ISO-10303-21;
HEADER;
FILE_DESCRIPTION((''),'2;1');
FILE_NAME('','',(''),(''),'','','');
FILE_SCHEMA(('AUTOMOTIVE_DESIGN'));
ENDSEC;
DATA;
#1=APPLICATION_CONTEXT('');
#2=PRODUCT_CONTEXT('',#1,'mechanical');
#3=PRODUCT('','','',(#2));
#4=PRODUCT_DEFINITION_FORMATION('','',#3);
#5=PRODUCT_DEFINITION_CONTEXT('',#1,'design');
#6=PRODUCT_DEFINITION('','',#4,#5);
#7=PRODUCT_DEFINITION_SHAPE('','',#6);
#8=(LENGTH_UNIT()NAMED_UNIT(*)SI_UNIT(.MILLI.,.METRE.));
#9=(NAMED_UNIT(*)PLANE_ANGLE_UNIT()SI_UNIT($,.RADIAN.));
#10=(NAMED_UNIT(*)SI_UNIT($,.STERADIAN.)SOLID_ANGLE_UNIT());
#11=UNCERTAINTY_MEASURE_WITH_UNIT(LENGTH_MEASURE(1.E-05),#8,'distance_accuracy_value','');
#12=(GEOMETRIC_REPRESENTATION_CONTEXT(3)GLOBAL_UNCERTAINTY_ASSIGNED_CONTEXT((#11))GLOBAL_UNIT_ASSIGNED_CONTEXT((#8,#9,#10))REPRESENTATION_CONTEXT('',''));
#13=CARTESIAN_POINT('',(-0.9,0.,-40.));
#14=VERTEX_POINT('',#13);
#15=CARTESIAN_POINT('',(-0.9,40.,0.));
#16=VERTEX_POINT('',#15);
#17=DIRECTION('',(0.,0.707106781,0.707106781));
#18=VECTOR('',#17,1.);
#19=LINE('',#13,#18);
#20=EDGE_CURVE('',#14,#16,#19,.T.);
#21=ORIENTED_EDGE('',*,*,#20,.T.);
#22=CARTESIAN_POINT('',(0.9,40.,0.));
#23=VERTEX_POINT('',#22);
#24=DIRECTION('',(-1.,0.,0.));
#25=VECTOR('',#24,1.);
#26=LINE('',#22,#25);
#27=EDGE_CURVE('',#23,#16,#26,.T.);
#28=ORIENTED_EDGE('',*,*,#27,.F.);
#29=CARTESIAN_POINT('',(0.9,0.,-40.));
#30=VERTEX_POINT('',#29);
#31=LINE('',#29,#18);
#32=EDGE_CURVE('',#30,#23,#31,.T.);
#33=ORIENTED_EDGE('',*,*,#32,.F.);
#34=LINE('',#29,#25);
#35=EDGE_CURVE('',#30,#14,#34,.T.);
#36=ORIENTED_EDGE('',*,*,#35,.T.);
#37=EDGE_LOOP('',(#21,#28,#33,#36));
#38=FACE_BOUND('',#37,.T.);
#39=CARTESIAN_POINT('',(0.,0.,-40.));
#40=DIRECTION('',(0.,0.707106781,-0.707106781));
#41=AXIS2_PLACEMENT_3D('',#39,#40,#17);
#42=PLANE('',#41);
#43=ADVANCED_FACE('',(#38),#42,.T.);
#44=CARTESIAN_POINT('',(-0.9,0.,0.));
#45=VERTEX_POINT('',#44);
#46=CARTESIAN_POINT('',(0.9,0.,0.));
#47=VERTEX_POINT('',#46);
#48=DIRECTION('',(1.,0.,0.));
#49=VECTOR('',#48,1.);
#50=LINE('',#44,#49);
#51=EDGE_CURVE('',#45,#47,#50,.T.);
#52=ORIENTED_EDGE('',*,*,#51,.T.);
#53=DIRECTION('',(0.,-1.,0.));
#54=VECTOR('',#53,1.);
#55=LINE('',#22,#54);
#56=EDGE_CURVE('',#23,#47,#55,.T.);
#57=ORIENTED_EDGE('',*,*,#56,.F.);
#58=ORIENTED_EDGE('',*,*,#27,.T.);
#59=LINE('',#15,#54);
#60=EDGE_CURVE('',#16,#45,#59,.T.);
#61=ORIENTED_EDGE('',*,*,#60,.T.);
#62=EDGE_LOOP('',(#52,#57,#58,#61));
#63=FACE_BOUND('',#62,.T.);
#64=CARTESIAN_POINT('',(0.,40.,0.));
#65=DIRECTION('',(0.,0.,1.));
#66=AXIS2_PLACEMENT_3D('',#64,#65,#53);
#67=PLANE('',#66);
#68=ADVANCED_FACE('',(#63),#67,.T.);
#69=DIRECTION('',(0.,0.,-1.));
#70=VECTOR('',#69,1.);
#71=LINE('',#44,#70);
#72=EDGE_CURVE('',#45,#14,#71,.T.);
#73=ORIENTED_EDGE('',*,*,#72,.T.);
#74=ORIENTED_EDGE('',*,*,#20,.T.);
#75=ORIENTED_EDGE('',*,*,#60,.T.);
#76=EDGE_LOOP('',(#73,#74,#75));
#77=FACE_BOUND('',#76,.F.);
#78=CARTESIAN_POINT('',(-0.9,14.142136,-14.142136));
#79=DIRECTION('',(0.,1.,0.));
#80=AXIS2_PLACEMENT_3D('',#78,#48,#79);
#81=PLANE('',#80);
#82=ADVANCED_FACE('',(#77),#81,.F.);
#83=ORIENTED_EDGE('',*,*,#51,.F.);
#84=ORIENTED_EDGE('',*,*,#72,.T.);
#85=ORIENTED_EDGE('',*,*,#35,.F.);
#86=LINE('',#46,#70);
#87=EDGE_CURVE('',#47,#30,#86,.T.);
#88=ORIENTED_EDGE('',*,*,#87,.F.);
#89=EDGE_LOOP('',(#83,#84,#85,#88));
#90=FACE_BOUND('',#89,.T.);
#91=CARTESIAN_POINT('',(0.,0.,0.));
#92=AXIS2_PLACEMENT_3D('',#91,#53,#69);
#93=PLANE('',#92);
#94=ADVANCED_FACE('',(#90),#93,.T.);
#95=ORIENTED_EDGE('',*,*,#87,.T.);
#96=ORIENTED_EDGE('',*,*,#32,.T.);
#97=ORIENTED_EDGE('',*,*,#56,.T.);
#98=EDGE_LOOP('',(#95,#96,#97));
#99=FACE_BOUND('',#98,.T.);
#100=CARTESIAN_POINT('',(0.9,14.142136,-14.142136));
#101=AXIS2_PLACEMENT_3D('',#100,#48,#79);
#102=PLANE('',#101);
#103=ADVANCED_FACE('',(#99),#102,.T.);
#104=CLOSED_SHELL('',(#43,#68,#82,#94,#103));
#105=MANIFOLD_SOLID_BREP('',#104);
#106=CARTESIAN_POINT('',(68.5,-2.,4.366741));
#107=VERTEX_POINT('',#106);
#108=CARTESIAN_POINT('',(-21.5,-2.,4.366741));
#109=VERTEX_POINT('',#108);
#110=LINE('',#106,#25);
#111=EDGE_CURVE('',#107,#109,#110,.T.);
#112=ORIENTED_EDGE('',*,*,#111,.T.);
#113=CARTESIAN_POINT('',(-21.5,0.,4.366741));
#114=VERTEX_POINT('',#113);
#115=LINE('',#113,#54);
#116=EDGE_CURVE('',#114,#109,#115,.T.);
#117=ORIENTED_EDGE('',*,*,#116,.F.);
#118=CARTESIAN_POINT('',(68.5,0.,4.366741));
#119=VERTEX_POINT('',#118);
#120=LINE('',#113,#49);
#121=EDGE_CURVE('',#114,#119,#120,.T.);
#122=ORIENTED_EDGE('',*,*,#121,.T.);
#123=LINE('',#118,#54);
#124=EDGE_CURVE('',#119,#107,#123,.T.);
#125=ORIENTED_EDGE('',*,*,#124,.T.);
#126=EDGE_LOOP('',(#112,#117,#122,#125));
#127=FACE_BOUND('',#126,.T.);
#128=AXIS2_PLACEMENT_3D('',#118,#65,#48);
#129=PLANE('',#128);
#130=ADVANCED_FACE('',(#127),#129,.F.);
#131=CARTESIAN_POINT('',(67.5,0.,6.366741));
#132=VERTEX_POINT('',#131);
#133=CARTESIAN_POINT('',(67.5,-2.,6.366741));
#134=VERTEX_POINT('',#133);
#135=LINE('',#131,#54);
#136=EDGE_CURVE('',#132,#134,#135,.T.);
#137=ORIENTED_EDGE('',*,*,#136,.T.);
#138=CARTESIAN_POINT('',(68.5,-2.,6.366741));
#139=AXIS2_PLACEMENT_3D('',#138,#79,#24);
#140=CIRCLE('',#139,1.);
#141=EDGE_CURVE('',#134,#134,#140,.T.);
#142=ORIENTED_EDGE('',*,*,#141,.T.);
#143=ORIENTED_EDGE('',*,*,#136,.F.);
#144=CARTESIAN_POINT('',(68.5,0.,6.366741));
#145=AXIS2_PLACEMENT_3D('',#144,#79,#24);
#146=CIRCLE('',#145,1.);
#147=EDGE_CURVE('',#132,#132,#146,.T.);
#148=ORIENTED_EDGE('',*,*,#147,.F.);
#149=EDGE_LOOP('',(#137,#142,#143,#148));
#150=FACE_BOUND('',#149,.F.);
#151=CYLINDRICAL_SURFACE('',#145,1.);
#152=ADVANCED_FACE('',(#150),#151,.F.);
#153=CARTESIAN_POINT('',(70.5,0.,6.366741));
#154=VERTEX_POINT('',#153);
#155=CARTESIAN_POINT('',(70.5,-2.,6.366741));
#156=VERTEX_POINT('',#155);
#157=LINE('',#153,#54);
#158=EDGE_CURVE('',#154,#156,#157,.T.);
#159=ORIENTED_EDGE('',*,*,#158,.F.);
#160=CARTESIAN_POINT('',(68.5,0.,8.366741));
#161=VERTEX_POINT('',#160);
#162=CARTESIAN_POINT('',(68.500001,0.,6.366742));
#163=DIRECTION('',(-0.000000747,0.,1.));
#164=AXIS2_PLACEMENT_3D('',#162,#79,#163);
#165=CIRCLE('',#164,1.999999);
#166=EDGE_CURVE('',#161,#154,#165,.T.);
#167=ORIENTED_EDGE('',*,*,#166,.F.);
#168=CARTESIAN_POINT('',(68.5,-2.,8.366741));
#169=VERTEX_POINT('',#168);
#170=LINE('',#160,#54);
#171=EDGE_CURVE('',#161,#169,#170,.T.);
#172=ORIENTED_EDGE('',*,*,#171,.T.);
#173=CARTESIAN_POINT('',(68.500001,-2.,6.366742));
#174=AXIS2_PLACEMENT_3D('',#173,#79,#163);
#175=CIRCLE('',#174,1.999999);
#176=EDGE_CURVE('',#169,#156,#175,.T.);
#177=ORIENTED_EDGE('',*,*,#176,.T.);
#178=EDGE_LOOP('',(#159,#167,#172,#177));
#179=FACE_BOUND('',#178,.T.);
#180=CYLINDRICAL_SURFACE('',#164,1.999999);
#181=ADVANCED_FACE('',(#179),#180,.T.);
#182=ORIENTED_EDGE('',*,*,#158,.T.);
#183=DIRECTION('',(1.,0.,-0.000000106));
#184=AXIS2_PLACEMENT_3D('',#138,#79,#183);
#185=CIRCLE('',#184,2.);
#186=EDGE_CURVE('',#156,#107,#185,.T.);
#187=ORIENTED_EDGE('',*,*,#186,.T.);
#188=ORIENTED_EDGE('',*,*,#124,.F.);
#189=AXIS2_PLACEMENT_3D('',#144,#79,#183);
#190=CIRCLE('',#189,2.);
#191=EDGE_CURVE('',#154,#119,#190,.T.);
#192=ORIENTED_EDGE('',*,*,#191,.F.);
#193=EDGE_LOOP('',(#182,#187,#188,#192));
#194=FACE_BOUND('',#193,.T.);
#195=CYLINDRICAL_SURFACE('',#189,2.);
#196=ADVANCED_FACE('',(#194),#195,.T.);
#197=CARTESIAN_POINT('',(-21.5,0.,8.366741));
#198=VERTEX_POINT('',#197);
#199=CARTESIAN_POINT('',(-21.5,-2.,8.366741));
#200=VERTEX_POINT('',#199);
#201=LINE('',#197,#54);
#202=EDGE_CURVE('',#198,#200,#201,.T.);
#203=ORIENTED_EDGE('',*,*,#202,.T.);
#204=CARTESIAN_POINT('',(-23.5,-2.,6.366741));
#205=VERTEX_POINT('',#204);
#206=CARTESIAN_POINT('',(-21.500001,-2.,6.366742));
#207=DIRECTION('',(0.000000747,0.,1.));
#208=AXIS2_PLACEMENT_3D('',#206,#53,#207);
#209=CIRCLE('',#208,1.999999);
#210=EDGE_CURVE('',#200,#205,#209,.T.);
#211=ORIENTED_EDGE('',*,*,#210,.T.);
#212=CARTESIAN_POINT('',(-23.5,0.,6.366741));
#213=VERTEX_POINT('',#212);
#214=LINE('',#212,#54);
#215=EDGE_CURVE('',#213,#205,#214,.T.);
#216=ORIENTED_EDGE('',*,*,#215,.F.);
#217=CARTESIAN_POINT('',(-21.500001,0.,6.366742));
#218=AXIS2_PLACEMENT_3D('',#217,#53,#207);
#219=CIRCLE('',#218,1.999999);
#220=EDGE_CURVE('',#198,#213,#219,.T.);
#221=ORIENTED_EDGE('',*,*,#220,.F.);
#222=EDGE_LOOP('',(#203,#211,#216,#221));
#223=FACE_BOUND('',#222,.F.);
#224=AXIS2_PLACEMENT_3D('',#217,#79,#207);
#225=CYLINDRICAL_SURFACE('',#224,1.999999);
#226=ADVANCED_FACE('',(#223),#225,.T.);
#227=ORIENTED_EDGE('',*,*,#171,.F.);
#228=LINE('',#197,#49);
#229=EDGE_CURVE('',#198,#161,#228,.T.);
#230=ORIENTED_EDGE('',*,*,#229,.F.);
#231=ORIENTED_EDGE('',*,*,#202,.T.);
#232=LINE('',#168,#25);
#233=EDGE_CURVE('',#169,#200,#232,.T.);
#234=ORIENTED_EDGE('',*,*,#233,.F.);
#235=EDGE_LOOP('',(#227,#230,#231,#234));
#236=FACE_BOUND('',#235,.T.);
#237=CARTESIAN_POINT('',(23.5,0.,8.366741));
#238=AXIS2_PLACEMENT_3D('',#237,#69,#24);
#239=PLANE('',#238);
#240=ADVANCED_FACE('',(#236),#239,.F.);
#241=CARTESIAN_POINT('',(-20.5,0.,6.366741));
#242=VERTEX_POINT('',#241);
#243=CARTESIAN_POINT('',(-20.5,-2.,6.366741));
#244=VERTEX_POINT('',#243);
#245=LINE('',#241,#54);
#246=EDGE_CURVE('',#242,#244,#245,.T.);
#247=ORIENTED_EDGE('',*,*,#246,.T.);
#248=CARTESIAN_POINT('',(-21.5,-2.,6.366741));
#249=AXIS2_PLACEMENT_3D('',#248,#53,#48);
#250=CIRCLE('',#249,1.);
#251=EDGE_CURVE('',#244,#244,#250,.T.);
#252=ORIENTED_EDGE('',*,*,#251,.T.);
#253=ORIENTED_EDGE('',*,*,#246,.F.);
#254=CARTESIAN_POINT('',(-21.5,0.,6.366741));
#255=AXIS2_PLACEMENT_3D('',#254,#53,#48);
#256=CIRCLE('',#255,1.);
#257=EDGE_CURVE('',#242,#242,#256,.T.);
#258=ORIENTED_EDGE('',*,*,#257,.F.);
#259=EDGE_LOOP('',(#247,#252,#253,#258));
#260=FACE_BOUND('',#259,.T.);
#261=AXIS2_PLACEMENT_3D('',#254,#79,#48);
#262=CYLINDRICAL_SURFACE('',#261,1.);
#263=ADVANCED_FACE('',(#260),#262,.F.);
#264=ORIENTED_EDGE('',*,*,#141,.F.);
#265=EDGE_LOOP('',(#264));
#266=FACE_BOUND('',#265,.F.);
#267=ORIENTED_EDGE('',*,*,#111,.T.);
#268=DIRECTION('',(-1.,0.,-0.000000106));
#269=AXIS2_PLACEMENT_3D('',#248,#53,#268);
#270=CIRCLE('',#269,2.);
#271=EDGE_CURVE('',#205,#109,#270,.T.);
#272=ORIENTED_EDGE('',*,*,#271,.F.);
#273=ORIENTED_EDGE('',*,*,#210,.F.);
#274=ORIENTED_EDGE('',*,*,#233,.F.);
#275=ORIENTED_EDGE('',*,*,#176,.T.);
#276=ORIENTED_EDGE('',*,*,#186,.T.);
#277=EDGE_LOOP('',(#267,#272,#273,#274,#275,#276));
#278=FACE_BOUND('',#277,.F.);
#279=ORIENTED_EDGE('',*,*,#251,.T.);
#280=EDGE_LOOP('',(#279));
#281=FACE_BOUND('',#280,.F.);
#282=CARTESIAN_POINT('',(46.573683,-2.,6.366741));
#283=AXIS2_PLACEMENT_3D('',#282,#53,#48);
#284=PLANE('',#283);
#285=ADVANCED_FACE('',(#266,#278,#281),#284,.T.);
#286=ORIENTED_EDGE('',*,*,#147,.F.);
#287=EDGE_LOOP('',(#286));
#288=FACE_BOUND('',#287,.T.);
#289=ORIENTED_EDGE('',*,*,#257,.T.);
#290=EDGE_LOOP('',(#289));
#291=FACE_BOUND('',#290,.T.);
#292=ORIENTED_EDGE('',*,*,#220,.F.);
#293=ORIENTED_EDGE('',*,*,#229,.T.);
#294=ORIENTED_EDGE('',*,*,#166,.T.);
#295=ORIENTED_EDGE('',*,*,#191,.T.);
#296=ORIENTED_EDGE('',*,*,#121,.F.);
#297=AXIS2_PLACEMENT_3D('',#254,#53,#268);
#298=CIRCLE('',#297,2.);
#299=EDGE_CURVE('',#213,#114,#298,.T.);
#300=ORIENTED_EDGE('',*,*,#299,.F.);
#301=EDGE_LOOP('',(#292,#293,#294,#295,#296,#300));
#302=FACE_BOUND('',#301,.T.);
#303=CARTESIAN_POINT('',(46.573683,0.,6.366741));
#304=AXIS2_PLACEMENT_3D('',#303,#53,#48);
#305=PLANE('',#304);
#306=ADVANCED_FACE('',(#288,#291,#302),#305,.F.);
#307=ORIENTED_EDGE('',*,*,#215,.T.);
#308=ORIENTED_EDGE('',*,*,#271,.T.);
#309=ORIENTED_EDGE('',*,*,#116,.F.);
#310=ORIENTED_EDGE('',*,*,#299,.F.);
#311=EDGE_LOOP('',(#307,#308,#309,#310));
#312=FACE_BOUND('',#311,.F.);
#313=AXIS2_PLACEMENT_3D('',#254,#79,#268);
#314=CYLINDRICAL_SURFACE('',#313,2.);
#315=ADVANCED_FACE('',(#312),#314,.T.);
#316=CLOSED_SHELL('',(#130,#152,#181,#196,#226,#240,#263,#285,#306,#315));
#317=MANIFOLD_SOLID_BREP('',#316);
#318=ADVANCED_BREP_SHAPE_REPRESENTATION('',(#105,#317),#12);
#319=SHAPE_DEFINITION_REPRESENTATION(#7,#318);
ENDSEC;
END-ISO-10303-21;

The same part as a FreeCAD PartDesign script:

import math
import FreeCAD as App
import Part
import Sketcher

doc = App.newDocument("Part")
body = doc.addObject("PartDesign::Body", "Body")

# Sketch on YZ plane
sketch1 = doc.addObject("Sketcher::SketchObject", "Sketch")
body.addObject(sketch1)
sketch1.AttachmentSupport = (doc.YZ_Plane, [""])
sketch1.MapMode = "FlatFace"
sketch1.addGeometry([
    Part.LineSegment(App.Vector(40, 0, 0), App.Vector(0, 0, 0)),
    Part.LineSegment(App.Vector(0, 0, 0), App.Vector(0, -40, 0)),
    Part.LineSegment(App.Vector(0, -40, 0), App.Vector(40, 0, 0)),
], False)
sketch1.addConstraint([
    Sketcher.Constraint("Coincident", 0, 2, 1, 1),
    Sketcher.Constraint("Coincident", 1, 2, 2, 1),
    Sketcher.Constraint("Coincident", 2, 2, 0, 1),
    Sketcher.Constraint("Horizontal", 0),
    Sketcher.Constraint("Vertical", 1),
    Sketcher.Constraint("Coincident", 0, 2, -1, 1),
    Sketcher.Constraint("Equal", 0, 1),
    Sketcher.Constraint("DistanceX", 0, 2, 0, 1, 40.0),
])
pad1 = doc.addObject("PartDesign::Pad", "Pad")
body.addObject(pad1)
pad1.Profile = sketch1
pad1.Length = 1.8
pad1.Midplane = True
body2 = doc.addObject("PartDesign::Body", "Body001")

# Sketch on XZ plane
sketch2 = doc.addObject("Sketcher::SketchObject", "Sketch001")
body2.addObject(sketch2)
sketch2.AttachmentSupport = (doc.getObject("XZ_Plane001"), [""])
sketch2.MapMode = "FlatFace"
sketch2.addGeometry([
    Part.LineSegment(App.Vector(23.5, 4.4, 0), App.Vector(23.5, 8.4, 0)),  # 0
    Part.LineSegment(App.Vector(23.5, 8.4, 0), App.Vector(-21.5, 8.4, 0)),  # 1
    Part.ArcOfCircle(Part.Circle(App.Vector(-21.5, 6.4, 0), App.Vector(0, 0, 1), 2), math.radians(90), math.radians(180)),  # 2
    Part.ArcOfCircle(Part.Circle(App.Vector(-21.5, 6.4, 0), App.Vector(0, 0, 1), 2), math.radians(-180), math.radians(-90)),  # 3
    Part.LineSegment(App.Vector(-21.5, 4.4, 0), App.Vector(23.5, 4.4, 0)),  # 4
    Part.Circle(App.Vector(-21.5, 6.4, 0), App.Vector(0, 0, 1), 1),  # 5
], False)
sketch2.addConstraint([
    Sketcher.Constraint("Coincident", 0, 2, 1, 1),
    Sketcher.Constraint("Tangent", 1, 2, 2, 1),
    Sketcher.Constraint("Tangent", 2, 2, 3, 1),
    Sketcher.Constraint("Tangent", 3, 2, 4, 1),
    Sketcher.Constraint("Coincident", 4, 2, 0, 1),
    Sketcher.Constraint("Vertical", 0),
    Sketcher.Constraint("Horizontal", 1),
    Sketcher.Constraint("Horizontal", 4),
    Sketcher.Constraint("Coincident", 5, 3, 2, 3),
    Sketcher.Constraint("Equal", 2, 3),
    Sketcher.Constraint("Horizontal", 5, 3, 2, 2),
    Sketcher.Constraint("Diameter", 5, 2.0),
    Sketcher.Constraint("Radius", 2, 1.999999),
    Sketcher.Constraint("DistanceX", 1, 2, 1, 1, 45.0),
    Sketcher.Constraint("DistanceX", 2, 3, -1, 1, 21.500001),
    Sketcher.Constraint("DistanceY", -1, 1, 3, 3, 6.366741),
])
pad2 = doc.addObject("PartDesign::Pad", "Pad001")
body2.addObject(pad2)
pad2.Profile = sketch2
pad2.Length = 2
body3 = doc.addObject("PartDesign::Body", "Body002")
doc.recompute()

body3.BaseFeature = body2
doc.recompute()

mirroring = doc.addObject("Part::Mirroring", "Mirroring")
mirroring.Source = body2
mirroring.Base = App.Vector(23.5, -1, 6.366741)
mirroring.Normal = App.Vector(1, 0, 0)
body4 = doc.addObject("PartDesign::Body", "Body003")
body4.BaseFeature = mirroring
boolean = doc.addObject("PartDesign::Boolean", "Boolean")
body3.addObject(boolean)
boolean.Type = "Fuse"
boolean.addObjects([body4])
doc.recompute()
mirroring.Visibility = False

doc.recompute()
